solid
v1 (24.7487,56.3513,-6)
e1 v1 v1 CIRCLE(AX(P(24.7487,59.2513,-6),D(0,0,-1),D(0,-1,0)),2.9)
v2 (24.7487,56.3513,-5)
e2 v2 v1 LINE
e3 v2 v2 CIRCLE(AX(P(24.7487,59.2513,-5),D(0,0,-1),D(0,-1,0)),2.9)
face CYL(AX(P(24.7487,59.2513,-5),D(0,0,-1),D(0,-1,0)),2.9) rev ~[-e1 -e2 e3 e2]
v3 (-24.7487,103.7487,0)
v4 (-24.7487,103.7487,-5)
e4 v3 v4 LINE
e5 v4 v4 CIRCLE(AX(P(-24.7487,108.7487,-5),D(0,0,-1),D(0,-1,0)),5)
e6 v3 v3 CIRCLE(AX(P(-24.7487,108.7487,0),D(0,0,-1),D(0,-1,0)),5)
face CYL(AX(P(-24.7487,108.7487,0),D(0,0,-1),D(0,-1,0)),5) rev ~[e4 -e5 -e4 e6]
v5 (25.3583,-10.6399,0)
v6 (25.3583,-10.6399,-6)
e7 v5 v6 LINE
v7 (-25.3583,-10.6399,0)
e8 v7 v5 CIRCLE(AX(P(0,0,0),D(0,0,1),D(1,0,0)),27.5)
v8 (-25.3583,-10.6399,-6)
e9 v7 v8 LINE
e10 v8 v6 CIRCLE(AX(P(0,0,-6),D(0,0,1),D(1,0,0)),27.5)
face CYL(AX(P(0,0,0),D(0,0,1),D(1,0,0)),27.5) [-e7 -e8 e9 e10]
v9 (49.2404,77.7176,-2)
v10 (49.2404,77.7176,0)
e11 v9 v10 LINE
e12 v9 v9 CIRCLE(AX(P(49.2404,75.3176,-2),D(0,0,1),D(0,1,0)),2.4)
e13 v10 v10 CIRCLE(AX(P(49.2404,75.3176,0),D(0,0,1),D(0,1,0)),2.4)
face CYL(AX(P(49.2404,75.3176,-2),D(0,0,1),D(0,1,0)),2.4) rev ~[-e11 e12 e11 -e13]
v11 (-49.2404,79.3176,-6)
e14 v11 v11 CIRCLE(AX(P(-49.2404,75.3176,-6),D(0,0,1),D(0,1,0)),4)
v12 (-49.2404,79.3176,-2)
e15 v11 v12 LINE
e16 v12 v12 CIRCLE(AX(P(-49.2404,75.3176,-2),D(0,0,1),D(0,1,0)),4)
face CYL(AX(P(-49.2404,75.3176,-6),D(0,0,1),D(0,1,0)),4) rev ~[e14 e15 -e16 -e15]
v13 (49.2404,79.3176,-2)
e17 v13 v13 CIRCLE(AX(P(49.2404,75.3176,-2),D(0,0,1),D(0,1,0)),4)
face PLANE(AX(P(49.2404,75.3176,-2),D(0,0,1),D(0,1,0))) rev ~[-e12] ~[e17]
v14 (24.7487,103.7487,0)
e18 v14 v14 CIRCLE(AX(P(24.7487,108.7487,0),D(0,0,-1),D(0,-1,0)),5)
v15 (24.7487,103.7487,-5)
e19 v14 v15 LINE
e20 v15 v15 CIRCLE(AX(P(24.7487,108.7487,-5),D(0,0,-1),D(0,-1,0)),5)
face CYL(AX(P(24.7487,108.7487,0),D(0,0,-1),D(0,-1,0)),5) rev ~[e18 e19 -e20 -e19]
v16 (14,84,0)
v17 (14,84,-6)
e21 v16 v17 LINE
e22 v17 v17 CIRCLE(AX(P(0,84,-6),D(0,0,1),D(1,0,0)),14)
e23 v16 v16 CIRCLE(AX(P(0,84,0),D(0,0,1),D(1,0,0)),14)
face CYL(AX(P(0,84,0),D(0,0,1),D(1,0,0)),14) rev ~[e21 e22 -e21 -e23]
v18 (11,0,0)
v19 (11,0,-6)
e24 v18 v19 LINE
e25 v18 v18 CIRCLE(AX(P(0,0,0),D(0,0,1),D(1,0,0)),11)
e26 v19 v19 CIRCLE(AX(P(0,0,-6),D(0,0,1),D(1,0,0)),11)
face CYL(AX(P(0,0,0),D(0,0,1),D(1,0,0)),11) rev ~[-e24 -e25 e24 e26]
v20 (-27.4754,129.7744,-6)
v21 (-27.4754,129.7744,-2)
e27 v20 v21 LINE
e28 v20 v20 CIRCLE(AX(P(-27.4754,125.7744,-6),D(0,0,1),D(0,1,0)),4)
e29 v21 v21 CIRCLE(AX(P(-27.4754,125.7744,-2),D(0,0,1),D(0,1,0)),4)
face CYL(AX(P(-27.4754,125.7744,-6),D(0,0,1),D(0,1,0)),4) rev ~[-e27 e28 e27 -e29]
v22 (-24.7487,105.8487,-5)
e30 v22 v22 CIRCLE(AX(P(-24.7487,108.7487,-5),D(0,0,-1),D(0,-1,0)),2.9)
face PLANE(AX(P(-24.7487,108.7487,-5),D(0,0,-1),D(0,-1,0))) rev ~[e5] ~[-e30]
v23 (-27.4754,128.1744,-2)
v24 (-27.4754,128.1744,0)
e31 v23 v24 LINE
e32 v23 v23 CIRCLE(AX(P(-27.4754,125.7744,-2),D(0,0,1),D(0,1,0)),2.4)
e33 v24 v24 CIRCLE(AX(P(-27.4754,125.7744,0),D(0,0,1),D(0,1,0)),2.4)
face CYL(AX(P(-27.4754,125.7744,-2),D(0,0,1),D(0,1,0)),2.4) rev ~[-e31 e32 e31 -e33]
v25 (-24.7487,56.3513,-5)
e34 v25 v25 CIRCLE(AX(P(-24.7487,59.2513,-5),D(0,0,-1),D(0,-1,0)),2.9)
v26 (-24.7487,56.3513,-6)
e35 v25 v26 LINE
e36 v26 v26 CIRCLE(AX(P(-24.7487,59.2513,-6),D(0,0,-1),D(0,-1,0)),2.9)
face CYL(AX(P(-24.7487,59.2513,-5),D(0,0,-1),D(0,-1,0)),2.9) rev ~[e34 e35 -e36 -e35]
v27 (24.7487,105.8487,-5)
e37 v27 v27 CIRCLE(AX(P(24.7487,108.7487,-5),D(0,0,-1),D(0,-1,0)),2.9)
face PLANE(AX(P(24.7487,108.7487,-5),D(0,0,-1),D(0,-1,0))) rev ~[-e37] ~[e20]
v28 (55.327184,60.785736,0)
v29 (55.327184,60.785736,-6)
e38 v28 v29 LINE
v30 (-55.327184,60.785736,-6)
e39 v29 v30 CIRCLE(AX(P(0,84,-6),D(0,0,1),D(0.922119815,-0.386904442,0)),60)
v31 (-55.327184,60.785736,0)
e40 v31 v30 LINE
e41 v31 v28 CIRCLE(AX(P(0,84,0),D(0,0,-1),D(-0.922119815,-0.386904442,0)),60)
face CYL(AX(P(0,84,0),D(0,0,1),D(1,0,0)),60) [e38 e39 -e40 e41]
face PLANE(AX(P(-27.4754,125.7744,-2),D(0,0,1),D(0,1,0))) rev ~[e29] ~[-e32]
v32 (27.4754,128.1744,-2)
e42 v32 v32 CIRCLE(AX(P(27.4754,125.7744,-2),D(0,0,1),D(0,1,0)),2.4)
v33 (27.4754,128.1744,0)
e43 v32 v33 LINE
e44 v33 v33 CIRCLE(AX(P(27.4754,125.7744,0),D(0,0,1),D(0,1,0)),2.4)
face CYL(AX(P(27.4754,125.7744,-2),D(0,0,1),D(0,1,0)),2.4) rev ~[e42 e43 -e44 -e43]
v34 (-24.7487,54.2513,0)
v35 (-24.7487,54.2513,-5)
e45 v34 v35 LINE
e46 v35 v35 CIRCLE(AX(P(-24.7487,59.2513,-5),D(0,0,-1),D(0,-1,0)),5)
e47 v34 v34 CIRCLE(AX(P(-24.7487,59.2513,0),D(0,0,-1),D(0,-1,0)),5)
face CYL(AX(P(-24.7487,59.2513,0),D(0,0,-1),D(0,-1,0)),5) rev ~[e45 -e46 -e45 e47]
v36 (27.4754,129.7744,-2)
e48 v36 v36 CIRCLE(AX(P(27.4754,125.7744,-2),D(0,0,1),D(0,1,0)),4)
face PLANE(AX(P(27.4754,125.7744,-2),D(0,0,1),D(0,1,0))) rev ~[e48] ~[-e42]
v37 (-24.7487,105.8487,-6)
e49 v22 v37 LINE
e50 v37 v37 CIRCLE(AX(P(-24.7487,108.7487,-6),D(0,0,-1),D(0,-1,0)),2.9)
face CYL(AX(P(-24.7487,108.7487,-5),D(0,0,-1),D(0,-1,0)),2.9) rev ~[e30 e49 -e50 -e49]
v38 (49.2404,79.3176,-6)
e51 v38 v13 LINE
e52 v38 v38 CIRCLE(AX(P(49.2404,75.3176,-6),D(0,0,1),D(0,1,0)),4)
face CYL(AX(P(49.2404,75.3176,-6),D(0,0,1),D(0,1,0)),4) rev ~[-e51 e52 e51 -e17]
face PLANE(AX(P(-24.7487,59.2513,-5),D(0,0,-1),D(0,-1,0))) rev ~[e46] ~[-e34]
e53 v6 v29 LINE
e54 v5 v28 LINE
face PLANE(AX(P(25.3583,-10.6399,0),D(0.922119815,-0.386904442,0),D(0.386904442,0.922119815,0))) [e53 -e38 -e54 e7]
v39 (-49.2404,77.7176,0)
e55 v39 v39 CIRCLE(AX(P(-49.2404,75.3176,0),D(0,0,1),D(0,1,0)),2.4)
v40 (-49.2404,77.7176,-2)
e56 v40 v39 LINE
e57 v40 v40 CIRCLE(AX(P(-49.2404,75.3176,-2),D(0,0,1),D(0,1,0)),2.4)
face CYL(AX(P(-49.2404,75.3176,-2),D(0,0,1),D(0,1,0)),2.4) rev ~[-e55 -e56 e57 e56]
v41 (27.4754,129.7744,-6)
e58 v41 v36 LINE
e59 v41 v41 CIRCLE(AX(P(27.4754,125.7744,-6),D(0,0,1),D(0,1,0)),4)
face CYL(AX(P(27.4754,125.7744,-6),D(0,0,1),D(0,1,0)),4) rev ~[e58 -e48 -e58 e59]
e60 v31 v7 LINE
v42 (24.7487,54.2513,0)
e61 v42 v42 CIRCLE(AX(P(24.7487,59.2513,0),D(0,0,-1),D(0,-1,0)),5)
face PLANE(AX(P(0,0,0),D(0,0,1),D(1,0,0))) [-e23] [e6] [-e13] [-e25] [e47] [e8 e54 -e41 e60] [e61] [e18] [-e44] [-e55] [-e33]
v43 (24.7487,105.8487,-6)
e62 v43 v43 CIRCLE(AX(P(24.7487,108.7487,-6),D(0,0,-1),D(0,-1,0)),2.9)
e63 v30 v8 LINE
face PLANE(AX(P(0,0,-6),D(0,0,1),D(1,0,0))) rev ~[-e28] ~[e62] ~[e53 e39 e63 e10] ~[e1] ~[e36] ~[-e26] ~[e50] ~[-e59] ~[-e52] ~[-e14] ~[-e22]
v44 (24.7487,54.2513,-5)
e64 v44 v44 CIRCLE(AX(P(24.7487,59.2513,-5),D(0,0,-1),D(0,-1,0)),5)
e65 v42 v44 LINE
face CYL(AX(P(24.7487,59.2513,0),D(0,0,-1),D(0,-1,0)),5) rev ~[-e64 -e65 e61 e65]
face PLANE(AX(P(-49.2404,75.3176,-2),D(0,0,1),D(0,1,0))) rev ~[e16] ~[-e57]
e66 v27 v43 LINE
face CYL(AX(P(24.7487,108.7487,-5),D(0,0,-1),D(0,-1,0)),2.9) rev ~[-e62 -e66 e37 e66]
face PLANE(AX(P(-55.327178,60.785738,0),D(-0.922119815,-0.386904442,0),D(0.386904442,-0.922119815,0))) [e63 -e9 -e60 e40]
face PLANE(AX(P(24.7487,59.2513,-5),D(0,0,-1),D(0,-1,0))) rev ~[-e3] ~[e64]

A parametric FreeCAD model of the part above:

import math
import FreeCAD as App
import Part
import Sketcher

V = App.Vector

doc = App.newDocument("Part")
body = doc.addObject("PartDesign::Body", "Body")

# Sketch on XY plane
sketch1 = body.newObject("Sketcher::SketchObject", "Sketch")
sketch1.AttachmentSupport = (doc.getObject("XY_Plane"), [""])
sketch1.MapMode = "FlatFace"
sketch1.addGeometry([
    Part.LineSegment(V(-55, 61, 0), V(-25, -11, 0)),  # 0
    Part.ArcOfCircle(Part.Circle(V(0, 0, 0), V(0, 0, 1), 28), math.radians(-157), math.radians(-23)),  # 1
    Part.LineSegment(V(25, -11, 0), V(55, 61, 0)),  # 2
    Part.ArcOfCircle(Part.Circle(V(0, 84, 0), V(0, 0, 1), 60), math.radians(-23), math.radians(203)),  # 3
    Part.Circle(V(0, 84, 0), V(0, 0, 1), 14),  # 4
    Part.Circle(V(0, 0, 0), V(0, 0, 1), 11),  # 5
], False)
sketch1.addConstraint([
    Sketcher.Constraint("Tangent", 0, 2, 1, 1),
    Sketcher.Constraint("Tangent", 1, 2, 2, 1),
    Sketcher.Constraint("Tangent", 2, 2, 3, 1),
    Sketcher.Constraint("Tangent", 3, 2, 0, 1),
    Sketcher.Constraint("Coincident", 1, 3, -1, 1),
    Sketcher.Constraint("Coincident", 5, 3, -1, 1),
    Sketcher.Constraint("Coincident", 4, 3, 3, 3),
    Sketcher.Constraint("PointOnObject", 3, 3, -2),
    Sketcher.Constraint("Diameter", 4, 28.0),
    Sketcher.Constraint("Diameter", 5, 22.0),
    Sketcher.Constraint("Radius", 3, 60.0),
    Sketcher.Constraint("Radius", 1, 27.5),
    Sketcher.Constraint("DistanceY", -1, 1, 3, 3, 84.0),
])
pad1 = body.newObject("PartDesign::Pad", "Pad")
pad1.Profile = sketch1
pad1.Length = 6
pad1.Reversed = True

# Sketch on XY plane
sketch2 = body.newObject("Sketcher::SketchObject", "Sketch001")
sketch2.AttachmentSupport = (doc.getObject("XY_Plane"), [""])
sketch2.MapMode = "FlatFace"
sketch2.addGeometry([
    Part.Circle(V(-24.7, 59.3, 0), V(0, 0, 1), 2.9),
    Part.Circle(V(-24.7, 108.7, 0), V(0, 0, 1), 2.9),
    Part.Circle(V(24.7, 108.7, 0), V(0, 0, 1), 2.9),
    Part.Circle(V(24.7, 59.3, 0), V(0, 0, 1), 2.9),
], False)
sketch2.addConstraint([
    Sketcher.Constraint("Equal", 0, 1),
    Sketcher.Constraint("Equal", 1, 2),
    Sketcher.Constraint("Equal", 2, 3),
    Sketcher.Constraint("Symmetric", 1, 3, 2, 3, -2),
    Sketcher.Constraint("Symmetric", 0, 3, 3, 3, -2),
    Sketcher.Constraint("Vertical", 0, 3, 1, 3),
    Sketcher.Constraint("Diameter", 0, 5.8),
    Sketcher.Constraint("DistanceX", 0, 3, -1, 1, 24.7487),
    Sketcher.Constraint("DistanceY", -1, 1, 0, 3, 59.2513),
    Sketcher.Constraint("DistanceY", -1, 1, 1, 3, 108.7487),
])
doc.recompute()
hole = body.newObject("PartDesign::Hole", "Hole")
hole.Profile = sketch2
hole.ThreadType = "None"
hole.Diameter = 5.8
hole.DepthType = "ThroughAll"
hole.HoleCutType = "Counterbore"
hole.HoleCutDiameter = 10
hole.HoleCutDepth = 5

# Sketch on XY plane
sketch3 = body.newObject("Sketcher::SketchObject", "Sketch002")
sketch3.AttachmentSupport = (doc.getObject("XY_Plane"), [""])
sketch3.MapMode = "FlatFace"
sketch3.AttachmentOffset = App.Placement(V(0, 0, -6), App.Rotation())
sketch3.addGeometry([
    Part.Circle(V(0, 84, 0), V(0, 0, 1), 2.4),  # 0
    Part.Circle(V(49.2, 75.3, 0), V(0, 0, 1), 2.4),  # 1
    Part.Circle(V(27.5, 125.8, 0), V(0, 0, 1), 2.4),  # 2
    Part.Circle(V(-27.5, 125.8, 0), V(0, 0, 1), 2.4),  # 3
    Part.Circle(V(-49.2, 75.3, 0), V(0, 0, 1), 2.4),  # 4
], False)
sketch3.addConstraint([
    Sketcher.Constraint("Equal", 0, 1),
    Sketcher.Constraint("Equal", 1, 2),
    Sketcher.Constraint("Equal", 2, 3),
    Sketcher.Constraint("Equal", 3, 4),
    Sketcher.Constraint("Symmetric", 2, 3, 3, 3, -2),
    Sketcher.Constraint("Symmetric", 1, 3, 4, 3, -2),
    Sketcher.Constraint("PointOnObject", 0, 3, -2),
    Sketcher.Constraint("Diameter", 0, 4.8),
    Sketcher.Constraint("DistanceY", -1, 1, 0, 3, 84.0),
    Sketcher.Constraint("DistanceX", 2, 3, 1, 3, 21.765),
    Sketcher.Constraint("DistanceX", -1, 1, 1, 3, 49.2404),
    Sketcher.Constraint("DistanceY", -1, 1, 1, 3, 75.3176),
    Sketcher.Constraint("DistanceY", -1, 1, 2, 3, 125.7744),
])
doc.recompute()
hole2 = body.newObject("PartDesign::Hole", "Hole001")
hole2.Profile = sketch3
hole2.ThreadType = "None"
hole2.Diameter = 4.8
hole2.DepthType = "ThroughAll"
hole2.HoleCutType = "Counterbore"
hole2.HoleCutDiameter = 8
hole2.HoleCutDepth = 4
hole2.Reversed = True

doc.recompute()
